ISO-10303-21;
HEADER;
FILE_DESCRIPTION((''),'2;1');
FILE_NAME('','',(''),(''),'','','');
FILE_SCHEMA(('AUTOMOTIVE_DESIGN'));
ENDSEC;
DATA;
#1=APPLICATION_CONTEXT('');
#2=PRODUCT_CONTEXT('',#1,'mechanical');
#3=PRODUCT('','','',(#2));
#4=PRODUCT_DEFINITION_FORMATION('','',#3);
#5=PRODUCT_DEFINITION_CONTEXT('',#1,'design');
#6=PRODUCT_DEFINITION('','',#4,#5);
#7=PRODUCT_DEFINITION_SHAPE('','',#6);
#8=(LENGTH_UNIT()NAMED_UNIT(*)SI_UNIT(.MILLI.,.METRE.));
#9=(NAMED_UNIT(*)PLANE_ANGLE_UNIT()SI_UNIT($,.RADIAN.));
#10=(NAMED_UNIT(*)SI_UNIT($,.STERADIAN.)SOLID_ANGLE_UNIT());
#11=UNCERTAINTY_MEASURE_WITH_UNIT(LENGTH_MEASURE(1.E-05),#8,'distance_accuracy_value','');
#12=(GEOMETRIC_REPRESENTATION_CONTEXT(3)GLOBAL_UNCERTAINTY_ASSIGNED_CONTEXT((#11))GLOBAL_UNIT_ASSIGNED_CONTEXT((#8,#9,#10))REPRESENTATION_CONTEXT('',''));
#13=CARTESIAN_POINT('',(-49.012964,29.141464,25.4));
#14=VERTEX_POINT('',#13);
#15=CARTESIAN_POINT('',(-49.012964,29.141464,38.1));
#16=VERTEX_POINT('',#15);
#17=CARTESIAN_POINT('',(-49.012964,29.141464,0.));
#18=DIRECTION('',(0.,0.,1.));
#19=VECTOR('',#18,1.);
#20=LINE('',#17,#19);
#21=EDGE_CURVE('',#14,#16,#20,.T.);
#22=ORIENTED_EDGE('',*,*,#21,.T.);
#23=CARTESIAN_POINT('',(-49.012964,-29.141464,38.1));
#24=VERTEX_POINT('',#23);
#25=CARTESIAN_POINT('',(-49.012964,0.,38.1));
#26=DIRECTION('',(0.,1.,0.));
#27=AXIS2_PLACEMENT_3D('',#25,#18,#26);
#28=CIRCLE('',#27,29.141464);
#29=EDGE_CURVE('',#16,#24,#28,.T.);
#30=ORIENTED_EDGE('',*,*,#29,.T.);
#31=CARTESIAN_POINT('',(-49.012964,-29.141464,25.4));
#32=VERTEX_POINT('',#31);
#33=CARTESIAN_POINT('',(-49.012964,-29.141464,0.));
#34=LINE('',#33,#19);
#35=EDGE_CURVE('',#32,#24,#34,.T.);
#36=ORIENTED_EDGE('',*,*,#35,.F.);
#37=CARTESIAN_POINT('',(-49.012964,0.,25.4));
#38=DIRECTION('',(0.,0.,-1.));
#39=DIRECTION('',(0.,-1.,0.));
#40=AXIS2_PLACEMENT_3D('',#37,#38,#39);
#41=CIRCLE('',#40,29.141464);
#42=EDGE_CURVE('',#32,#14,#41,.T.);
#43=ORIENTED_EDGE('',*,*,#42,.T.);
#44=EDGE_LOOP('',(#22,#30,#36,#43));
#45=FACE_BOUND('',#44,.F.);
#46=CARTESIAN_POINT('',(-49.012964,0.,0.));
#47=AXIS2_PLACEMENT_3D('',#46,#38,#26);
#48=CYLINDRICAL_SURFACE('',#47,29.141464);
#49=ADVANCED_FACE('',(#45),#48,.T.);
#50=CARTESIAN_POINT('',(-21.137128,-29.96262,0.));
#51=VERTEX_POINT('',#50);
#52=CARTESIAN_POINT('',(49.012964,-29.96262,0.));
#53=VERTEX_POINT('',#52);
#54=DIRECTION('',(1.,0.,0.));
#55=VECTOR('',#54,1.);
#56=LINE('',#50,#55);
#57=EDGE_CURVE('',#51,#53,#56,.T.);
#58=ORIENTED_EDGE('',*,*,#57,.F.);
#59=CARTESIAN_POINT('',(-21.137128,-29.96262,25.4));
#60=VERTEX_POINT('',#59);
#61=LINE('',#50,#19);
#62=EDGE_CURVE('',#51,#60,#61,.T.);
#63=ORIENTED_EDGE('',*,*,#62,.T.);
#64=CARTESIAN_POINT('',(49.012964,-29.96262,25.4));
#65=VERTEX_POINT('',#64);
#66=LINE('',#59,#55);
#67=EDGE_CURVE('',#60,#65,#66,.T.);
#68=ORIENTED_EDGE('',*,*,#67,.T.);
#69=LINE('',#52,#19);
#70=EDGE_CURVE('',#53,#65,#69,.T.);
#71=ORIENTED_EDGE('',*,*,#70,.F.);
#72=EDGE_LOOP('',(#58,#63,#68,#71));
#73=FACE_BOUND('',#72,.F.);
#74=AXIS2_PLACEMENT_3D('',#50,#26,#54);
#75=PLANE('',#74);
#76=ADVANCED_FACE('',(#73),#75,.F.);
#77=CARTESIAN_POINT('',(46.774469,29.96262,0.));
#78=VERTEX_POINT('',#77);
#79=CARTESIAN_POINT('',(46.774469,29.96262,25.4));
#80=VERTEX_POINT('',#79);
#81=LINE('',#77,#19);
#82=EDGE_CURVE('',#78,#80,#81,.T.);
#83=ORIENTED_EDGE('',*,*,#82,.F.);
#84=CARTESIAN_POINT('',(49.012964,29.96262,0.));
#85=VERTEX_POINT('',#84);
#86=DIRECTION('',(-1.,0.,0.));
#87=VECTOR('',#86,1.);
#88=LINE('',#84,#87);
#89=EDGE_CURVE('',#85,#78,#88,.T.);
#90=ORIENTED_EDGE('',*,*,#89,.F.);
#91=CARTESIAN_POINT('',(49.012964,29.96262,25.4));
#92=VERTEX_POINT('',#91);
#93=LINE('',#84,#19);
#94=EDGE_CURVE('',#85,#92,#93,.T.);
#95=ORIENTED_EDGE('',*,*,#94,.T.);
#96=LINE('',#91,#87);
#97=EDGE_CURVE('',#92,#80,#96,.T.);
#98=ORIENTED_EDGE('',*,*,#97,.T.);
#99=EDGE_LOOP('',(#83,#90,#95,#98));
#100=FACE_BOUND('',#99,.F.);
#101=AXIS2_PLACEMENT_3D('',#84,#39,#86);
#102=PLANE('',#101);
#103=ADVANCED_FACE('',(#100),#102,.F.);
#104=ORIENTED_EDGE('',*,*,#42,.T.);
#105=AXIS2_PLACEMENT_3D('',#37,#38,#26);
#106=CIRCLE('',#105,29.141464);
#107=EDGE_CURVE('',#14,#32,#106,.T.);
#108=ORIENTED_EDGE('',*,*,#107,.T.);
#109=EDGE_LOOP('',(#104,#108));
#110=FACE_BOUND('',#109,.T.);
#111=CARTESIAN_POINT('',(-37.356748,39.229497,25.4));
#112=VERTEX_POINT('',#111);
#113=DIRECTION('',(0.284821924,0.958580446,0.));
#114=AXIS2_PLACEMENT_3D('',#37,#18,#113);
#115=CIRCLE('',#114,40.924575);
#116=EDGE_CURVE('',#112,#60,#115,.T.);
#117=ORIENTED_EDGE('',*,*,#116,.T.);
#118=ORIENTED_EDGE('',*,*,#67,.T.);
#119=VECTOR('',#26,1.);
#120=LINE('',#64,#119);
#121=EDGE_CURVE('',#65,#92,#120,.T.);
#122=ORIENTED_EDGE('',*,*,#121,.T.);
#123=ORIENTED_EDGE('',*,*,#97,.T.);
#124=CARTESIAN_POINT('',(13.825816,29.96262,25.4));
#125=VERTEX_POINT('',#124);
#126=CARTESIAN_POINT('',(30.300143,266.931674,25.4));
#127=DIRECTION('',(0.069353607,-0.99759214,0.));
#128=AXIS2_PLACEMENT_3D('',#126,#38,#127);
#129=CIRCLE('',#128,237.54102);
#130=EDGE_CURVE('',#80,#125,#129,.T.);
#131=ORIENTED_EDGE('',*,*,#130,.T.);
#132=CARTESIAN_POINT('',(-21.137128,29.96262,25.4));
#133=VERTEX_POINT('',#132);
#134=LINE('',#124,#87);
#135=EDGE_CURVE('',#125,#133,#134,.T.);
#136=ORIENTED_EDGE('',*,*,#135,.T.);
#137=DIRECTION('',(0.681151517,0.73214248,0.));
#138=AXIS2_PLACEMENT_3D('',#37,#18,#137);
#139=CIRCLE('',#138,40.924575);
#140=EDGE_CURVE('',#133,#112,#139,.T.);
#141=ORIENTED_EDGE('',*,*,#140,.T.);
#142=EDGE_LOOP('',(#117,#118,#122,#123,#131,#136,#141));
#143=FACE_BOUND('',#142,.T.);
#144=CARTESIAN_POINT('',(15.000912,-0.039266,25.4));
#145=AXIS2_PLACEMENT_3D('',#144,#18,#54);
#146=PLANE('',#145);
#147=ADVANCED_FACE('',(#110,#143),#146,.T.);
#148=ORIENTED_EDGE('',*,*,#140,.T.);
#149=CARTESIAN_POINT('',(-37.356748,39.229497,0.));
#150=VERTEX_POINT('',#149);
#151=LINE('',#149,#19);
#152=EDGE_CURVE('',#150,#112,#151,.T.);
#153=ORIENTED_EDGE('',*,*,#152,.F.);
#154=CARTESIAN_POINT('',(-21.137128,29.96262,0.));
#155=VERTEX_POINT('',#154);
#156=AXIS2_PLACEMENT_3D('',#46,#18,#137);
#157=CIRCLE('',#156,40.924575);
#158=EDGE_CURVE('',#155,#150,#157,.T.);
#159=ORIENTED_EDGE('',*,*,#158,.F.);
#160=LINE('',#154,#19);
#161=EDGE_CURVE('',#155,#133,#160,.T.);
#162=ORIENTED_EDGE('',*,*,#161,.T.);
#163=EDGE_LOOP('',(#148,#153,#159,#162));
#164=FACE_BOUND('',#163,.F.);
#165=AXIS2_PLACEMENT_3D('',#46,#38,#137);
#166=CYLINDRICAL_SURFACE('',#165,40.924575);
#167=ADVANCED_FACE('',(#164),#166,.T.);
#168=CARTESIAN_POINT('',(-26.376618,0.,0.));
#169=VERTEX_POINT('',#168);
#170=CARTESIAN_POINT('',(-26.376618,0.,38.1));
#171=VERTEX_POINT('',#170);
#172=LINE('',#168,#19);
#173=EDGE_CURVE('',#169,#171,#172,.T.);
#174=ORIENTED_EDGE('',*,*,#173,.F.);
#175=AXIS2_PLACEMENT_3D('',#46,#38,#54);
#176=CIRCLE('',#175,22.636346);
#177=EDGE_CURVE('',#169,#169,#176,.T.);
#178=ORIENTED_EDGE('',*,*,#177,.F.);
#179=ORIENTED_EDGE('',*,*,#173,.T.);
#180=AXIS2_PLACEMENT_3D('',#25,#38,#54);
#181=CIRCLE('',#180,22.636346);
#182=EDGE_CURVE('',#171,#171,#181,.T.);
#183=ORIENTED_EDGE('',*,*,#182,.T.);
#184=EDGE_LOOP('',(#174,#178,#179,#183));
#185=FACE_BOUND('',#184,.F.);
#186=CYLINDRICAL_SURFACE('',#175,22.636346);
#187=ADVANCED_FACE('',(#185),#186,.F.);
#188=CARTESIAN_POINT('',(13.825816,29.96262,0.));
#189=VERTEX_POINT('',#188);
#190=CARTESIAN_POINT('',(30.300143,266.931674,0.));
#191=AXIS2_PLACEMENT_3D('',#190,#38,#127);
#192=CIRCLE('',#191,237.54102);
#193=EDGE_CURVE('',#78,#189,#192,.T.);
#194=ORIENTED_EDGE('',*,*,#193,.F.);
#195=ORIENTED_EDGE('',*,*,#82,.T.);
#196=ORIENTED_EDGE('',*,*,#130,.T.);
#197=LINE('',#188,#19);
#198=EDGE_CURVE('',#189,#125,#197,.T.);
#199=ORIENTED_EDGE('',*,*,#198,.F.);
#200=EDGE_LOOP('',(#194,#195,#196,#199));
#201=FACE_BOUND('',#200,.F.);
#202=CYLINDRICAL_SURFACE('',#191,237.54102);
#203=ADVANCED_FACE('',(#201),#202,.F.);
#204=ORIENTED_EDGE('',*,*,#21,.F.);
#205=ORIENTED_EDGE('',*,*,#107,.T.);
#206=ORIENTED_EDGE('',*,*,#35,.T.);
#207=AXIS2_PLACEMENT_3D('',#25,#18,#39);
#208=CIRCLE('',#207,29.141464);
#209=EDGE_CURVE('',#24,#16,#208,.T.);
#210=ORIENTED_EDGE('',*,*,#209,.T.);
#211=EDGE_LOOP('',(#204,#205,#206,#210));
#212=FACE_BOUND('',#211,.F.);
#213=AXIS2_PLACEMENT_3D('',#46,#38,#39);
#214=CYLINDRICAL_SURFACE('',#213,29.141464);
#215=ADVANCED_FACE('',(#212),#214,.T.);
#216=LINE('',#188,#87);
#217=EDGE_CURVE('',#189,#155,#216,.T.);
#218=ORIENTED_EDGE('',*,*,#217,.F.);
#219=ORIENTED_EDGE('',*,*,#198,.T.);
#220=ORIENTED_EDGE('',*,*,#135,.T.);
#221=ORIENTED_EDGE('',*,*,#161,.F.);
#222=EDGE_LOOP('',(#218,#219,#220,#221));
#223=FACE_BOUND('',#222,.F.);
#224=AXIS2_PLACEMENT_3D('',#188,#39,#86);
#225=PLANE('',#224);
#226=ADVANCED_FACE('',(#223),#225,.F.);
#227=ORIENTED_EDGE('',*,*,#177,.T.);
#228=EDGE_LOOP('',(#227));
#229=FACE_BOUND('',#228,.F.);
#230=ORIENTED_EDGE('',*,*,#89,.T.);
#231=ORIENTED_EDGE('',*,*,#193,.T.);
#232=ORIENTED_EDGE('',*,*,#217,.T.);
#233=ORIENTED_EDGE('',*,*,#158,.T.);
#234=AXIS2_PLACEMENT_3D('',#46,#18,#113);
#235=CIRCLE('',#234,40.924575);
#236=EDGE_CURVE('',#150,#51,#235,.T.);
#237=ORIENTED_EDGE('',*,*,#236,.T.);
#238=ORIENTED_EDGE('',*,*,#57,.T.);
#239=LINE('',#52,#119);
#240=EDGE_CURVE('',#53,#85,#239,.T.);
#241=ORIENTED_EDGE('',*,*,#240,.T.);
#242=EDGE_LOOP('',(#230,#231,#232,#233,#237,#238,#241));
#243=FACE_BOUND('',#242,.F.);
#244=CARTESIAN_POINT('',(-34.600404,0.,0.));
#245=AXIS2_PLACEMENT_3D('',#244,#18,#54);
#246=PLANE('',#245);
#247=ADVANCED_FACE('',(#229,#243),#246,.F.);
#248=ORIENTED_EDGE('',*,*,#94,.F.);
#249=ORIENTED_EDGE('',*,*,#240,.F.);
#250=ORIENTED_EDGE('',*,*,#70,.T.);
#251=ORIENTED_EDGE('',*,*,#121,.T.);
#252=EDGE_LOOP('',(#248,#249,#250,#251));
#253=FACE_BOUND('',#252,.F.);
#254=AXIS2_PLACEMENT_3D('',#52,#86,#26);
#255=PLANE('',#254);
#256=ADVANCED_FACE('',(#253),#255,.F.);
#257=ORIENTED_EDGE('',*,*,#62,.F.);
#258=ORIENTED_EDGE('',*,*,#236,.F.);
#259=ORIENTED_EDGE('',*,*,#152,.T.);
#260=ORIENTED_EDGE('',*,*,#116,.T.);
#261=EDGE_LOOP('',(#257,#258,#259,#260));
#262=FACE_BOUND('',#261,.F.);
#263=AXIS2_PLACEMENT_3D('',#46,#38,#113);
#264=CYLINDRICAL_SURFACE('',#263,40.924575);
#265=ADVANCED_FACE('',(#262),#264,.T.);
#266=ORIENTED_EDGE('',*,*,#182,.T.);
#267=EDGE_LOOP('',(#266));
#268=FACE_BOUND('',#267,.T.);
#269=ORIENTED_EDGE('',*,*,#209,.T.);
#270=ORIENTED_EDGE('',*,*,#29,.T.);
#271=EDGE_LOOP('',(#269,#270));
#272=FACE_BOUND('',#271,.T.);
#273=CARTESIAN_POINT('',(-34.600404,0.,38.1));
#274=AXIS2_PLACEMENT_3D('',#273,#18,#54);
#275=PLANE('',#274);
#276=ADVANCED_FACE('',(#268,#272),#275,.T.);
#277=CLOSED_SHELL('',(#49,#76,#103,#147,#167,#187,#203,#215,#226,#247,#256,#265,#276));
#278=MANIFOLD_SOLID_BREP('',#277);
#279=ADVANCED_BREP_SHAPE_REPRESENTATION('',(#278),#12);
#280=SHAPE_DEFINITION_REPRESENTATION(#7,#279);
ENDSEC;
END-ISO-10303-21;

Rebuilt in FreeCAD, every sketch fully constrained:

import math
import FreeCAD as App
import Part
import Sketcher

V = App.Vector
Q = App.Units.Quantity

doc = App.newDocument("Part")
body = doc.addObject("PartDesign::Body", "Body")

# Sketch on XY plane
sketch1 = body.newObject("Sketcher::SketchObject", "Sketch")
sketch1.AttachmentSupport = (doc.getObject("XY_Plane"), [""])
sketch1.MapMode = "FlatFace"
sketch1.addGeometry([
    Part.LineSegment(V(49, 30, 0), V(46.8, 30, 0)),  # 0
    Part.ArcOfCircle(Part.Circle(V(30.3, 266.9, 0), V(0, 0, 1), 237.5), math.radians(-93.98), math.radians(-86.02)),  # 1
    Part.LineSegment(V(13.8, 30, 0), V(-21.1, 30, 0)),  # 2
    Part.ArcOfCircle(Part.Circle(V(-49, 0, 0), V(0, 0, 1), 40.9), math.radians(47), math.radians(73)),  # 3
    Part.ArcOfCircle(Part.Circle(V(-49, 0, 0), V(0, 0, 1), 40.9), math.radians(73), math.radians(313)),  # 4
    Part.LineSegment(V(-21.1, -30, 0), V(49, -30, 0)),  # 5
    Part.LineSegment(V(49, -30, 0), V(49, 30, 0)),  # 6
    Part.ArcOfCircle(Part.Circle(V(-49, 0, 0), V(0, 0, 1), 29.1), math.radians(-90), math.radians(90)),  # 7
    Part.ArcOfCircle(Part.Circle(V(-49, 0, 0), V(0, 0, 1), 29.1), math.radians(90), math.radians(270)),  # 8
], False)
sketch1.addConstraint([
    Sketcher.Constraint("Coincident", 0, 2, 1, 2),
    Sketcher.Constraint("Coincident", 1, 1, 2, 1),
    Sketcher.Constraint("Coincident", 2, 2, 3, 1),
    Sketcher.Constraint("Tangent", 3, 2, 4, 1),
    Sketcher.Constraint("Coincident", 4, 2, 5, 1),
    Sketcher.Constraint("Coincident", 5, 2, 6, 1),
    Sketcher.Constraint("Coincident", 6, 2, 0, 1),
    Sketcher.Constraint("Tangent", 7, 1, 8, 2),
    Sketcher.Constraint("Coincident", 8, 1, 7, 2),
    Sketcher.Constraint("Horizontal", 0),
    Sketcher.Constraint("Horizontal", 2),
    Sketcher.Constraint("Horizontal", 5),
    Sketcher.Constraint("Vertical", 6),
    Sketcher.Constraint("Coincident", 7, 3, 3, 3),
    Sketcher.Constraint("Equal", 3, 4),
    Sketcher.Constraint("Symmetric", 2, 2, 4, 2, -1),
    Sketcher.Constraint("Horizontal", 0, 2, 1, 1),
    Sketcher.Constraint("Vertical", 8, 3, 7, 1),
    Sketcher.Constraint("Vertical", 7, 1, 8, 1),
    Sketcher.Constraint("Radius", 1, 237.54102),
    Sketcher.Constraint("Radius", 3, 40.924575),
    Sketcher.Constraint("Radius", 7, 29.141464),
    Sketcher.Constraint("DistanceX", 5, 1, 5, 2, 70.150091),
    Sketcher.Constraint("DistanceY", 6, 1, 6, 2, 59.92524),
    Sketcher.Constraint("DistanceX", 0, 2, 0, 1, 2.238495),
    Sketcher.Constraint("DistanceX", 2, 2, 2, 1, 34.962944),
    Sketcher.Constraint("DistanceX", -1, 1, 0, 2, 46.774469),
    Sketcher.Constraint("DistanceX", 3, 2, 2, 2, 16.21962),
])
pad1 = body.newObject("PartDesign::Pad", "Pad")
pad1.Profile = sketch1
pad1.Length = Q("1 in")

# Sketch on XY plane
sketch2 = body.newObject("Sketcher::SketchObject", "Sketch001")
sketch2.AttachmentSupport = (doc.getObject("XY_Plane"), [""])
sketch2.MapMode = "FlatFace"
sketch2.addGeometry([
    Part.ArcOfCircle(Part.Circle(V(-49, 0, 0), V(0, 0, 1), 29), math.radians(-90), math.radians(90)),
    Part.ArcOfCircle(Part.Circle(V(-49, 0, 0), V(0, 0, 1), 29), math.radians(90), math.radians(270)),
    Part.Circle(V(-49, 0, 0), V(0, 0, 1), 23),
], False)
sketch2.addConstraint([
    Sketcher.Constraint("Tangent", 0, 1, 1, 2),
    Sketcher.Constraint("Coincident", 1, 1, 0, 2),
    Sketcher.Constraint("Coincident", 2, 3, 0, 3),
    Sketcher.Constraint("Symmetric", 0, 1, 1, 1, -1),
    Sketcher.Constraint("Vertical", 2, 3, 0, 1),
    Sketcher.Constraint("Diameter", 2, 45.272692),
    Sketcher.Constraint("Radius", 0, 29.141464),
    Sketcher.Constraint("DistanceX", 0, 3, -1, 1, 49.012964),
])
pad2 = body.newObject("PartDesign::Pad", "Pad001")
pad2.Profile = sketch2
pad2.Length = Q("1.5 in")

doc.recompute()
